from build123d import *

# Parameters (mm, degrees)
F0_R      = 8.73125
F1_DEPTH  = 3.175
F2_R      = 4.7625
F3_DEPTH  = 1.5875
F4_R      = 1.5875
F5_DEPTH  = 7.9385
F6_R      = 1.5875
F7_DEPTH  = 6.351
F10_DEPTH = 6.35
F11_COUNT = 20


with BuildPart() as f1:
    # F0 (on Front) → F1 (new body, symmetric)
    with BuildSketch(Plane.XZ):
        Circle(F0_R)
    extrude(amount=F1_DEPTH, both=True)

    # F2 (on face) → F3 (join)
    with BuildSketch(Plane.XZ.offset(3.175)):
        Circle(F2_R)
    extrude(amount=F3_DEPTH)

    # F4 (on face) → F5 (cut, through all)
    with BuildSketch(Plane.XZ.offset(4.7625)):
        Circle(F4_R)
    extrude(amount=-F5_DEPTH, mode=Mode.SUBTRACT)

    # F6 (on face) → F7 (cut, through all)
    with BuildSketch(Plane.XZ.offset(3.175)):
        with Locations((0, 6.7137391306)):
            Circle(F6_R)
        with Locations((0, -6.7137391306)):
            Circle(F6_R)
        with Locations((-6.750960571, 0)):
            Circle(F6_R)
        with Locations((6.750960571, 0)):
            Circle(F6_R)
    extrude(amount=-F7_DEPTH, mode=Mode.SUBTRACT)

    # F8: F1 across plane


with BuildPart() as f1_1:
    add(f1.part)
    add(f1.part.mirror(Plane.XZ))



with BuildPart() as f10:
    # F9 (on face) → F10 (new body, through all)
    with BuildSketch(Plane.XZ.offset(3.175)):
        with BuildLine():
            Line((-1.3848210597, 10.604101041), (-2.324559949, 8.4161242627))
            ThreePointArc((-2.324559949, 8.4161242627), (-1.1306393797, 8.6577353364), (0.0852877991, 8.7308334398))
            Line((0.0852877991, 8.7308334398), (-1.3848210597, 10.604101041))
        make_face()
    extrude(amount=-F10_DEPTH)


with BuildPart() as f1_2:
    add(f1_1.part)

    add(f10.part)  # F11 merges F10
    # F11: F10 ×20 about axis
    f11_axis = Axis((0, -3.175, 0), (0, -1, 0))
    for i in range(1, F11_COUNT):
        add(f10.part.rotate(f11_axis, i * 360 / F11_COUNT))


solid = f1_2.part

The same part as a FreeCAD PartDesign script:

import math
import FreeCAD as App
import Part
import Sketcher

V = App.Vector
Q = App.Units.Quantity

doc = App.newDocument("Part")
body = doc.addObject("PartDesign::Body", "Body")

sketch1 = body.newObject("Sketcher::SketchObject", "Sketch")
sketch1.AttachmentSupport = (doc.getObject("XZ_Plane"), [""])
sketch1.MapMode = "FlatFace"
sketch1.addGeometry(Part.Circle(V(0, 0, 0), V(0, 0, 1), 9), False)
sketch1.addConstraint([
    Sketcher.Constraint("Coincident", 0, 3, -1, 1),
    Sketcher.Constraint("Diameter", 0, Q("0.6875 in")),
])
pad1 = body.newObject("PartDesign::Pad", "Pad")
pad1.Profile = sketch1
pad1.Length = Q("0.25 in")
pad1.Midplane = True

sketch2 = body.newObject("Sketcher::SketchObject", "Sketch001")
sketch2.AttachmentSupport = (doc.getObject("XZ_Plane"), [""])
sketch2.MapMode = "FlatFace"
sketch2.AttachmentOffset = App.Placement(V(0, 0, 0.125 * 25.4), App.Rotation())
sketch2.addGeometry(Part.Circle(V(0, 0, 0), V(0, 0, 1), 4.8), False)
sketch2.addConstraint([
    Sketcher.Constraint("Coincident", 0, 3, -1, 1),
    Sketcher.Constraint("Diameter", 0, Q("0.375 in")),
])
pad2 = body.newObject("PartDesign::Pad", "Pad001")
pad2.Profile = sketch2
pad2.Length = Q("0.0625 in")

sketch3 = body.newObject("Sketcher::SketchObject", "Sketch002")
sketch3.AttachmentSupport = (doc.getObject("XZ_Plane"), [""])
sketch3.MapMode = "FlatFace"
sketch3.AttachmentOffset = App.Placement(V(0, 0, 0.1875 * 25.4), App.Rotation())
sketch3.addGeometry(Part.Circle(V(0, 0, 0), V(0, 0, 1), 1.6), False)
sketch3.addConstraint([
    Sketcher.Constraint("Coincident", 0, 3, -1, 1),
    Sketcher.Constraint("Diameter", 0, Q("0.125 in")),
])
pocket1 = body.newObject("PartDesign::Pocket", "Pocket")
pocket1.Profile = sketch3
pocket1.Type = "ThroughAll"

sketch4 = body.newObject("Sketcher::SketchObject", "Sketch003")
sketch4.AttachmentSupport = (doc.getObject("XZ_Plane"), [""])
sketch4.MapMode = "FlatFace"
sketch4.AttachmentOffset = App.Placement(V(0, 0, 0.125 * 25.4), App.Rotation())
sketch4.addGeometry([
    Part.Circle(V(0, 6.7, 0), V(0, 0, 1), 1.6),
    Part.Circle(V(0, -6.7, 0), V(0, 0, 1), 1.6),
    Part.Circle(V(-6.8, 0, 0), V(0, 0, 1), 1.6),
    Part.Circle(V(6.8, 0, 0), V(0, 0, 1), 1.6),
], False)
sketch4.addConstraint([
    Sketcher.Constraint("Equal", 0, 1),
    Sketcher.Constraint("Equal", 1, 2),
    Sketcher.Constraint("Equal", 2, 3),
    Sketcher.Constraint("Symmetric", 0, 3, 1, 3, -1, 1),
    Sketcher.Constraint("Symmetric", 2, 3, 3, 3, -1, 1),
    Sketcher.Constraint("PointOnObject", 0, 3, -2),
    Sketcher.Constraint("PointOnObject", 2, 3, -1),
    Sketcher.Constraint("Diameter", 0, Q("0.125 in")),
    Sketcher.Constraint("DistanceY", -1, 1, 0, 3, Q("6.713739 mm")),
    Sketcher.Constraint("DistanceX", 2, 3, -1, 1, Q("6.750961 mm")),
])
pocket2 = body.newObject("PartDesign::Pocket", "Pocket001")
pocket2.Profile = sketch4
pocket2.Type = "ThroughAll"
body2 = doc.addObject("PartDesign::Body", "Body001")
doc.recompute()

body2.BaseFeature = body
doc.recompute()

mirroring = doc.addObject("Part::Mirroring", "Mirroring")
mirroring.Source = body
mirroring.Base = V(0, 0, 0)
mirroring.Normal = V(0, -1, 0)
body3 = doc.addObject("PartDesign::Body", "Body002")
body3.BaseFeature = mirroring
boolean = body2.newObject("PartDesign::Boolean", "Boolean")
boolean.Type = "Fuse"
boolean.addObjects([body3])
doc.recompute()
body4 = doc.addObject("PartDesign::Body", "Body003")

sketch5 = body4.newObject("Sketcher::SketchObject", "Sketch004")
sketch5.AttachmentSupport = (doc.getObject("XZ_Plane003"), [""])
sketch5.MapMode = "FlatFace"
sketch5.AttachmentOffset = App.Placement(V(0, 0, 0.125 * 25.4), App.Rotation())
sketch5.addGeometry([
    Part.LineSegment(V(-1.4, 10.6, 0), V(-2.3, 8.4, 0)),
    Part.ArcOfCircle(Part.Circle(V(0, 0, 0), V(0, 0, 1), 8.7), math.radians(89.44), math.radians(105.44)),
    Part.LineSegment(V(0.1, 8.7, 0), V(-1.4, 10.6, 0)),
], False)
sketch5.addConstraint([
    Sketcher.Constraint("Coincident", 0, 2, 1, 2),
    Sketcher.Constraint("Coincident", 1, 1, 2, 1),
    Sketcher.Constraint("Coincident", 2, 2, 0, 1),
    Sketcher.Constraint("Coincident", 1, 3, -1, 1),
    Sketcher.Constraint("Equal", 0, 2),
    Sketcher.Constraint("Radius", 1, Q("0.34375 in")),
    Sketcher.Constraint("Distance", 0, Q("0.09375 in")),
    Sketcher.Constraint("DistanceY", -1, 1, 2, 2, Q("10.604101 mm")),
    Sketcher.Constraint("DistanceX", 0, 2, -1, 1, Q("2.32456 mm")),
])
pad3 = body4.newObject("PartDesign::Pad", "Pad002")
pad3.Profile = sketch5
pad3.Length = Q("0.25 in")
pad3.Reversed = True
doc.recompute()

body5 = doc.addObject("PartDesign::Body", "Body004")
body5.BaseFeature = body4
boolean2 = body2.newObject("PartDesign::Boolean", "Boolean001")
boolean2.Type = "Fuse"
boolean2.addObjects([body5])
doc.recompute()

body6 = doc.addObject("PartDesign::Body", "Body005")
body6.BaseFeature = body4
body6.Placement = App.Placement(V(0, 0, 0), App.Rotation(V(0, -1, 0), 18))
boolean3 = body2.newObject("PartDesign::Boolean", "Boolean002")
boolean3.Type = "Fuse"
boolean3.addObjects([body6])
doc.recompute()

body7 = doc.addObject("PartDesign::Body", "Body006")
body7.BaseFeature = body4
body7.Placement = App.Placement(V(0, 0, 0), App.Rotation(V(0, -1, 0), 36))
boolean4 = body2.newObject("PartDesign::Boolean", "Boolean003")
boolean4.Type = "Fuse"
boolean4.addObjects([body7])
doc.recompute()

body8 = doc.addObject("PartDesign::Body", "Body007")
body8.BaseFeature = body4
body8.Placement = App.Placement(V(0, 0, 0), App.Rotation(V(0, -1, 0), 54))
boolean5 = body2.newObject("PartDesign::Boolean", "Boolean004")
boolean5.Type = "Fuse"
boolean5.addObjects([body8])
doc.recompute()

body9 = doc.addObject("PartDesign::Body", "Body008")
body9.BaseFeature = body4
body9.Placement = App.Placement(V(0, 0, 0), App.Rotation(V(0, -1, 0), 72))
boolean6 = body2.newObject("PartDesign::Boolean", "Boolean005")
boolean6.Type = "Fuse"
boolean6.addObjects([body9])
doc.recompute()

body10 = doc.addObject("PartDesign::Body", "Body009")
body10.BaseFeature = body4
body10.Placement = App.Placement(V(0, 0, 0), App.Rotation(V(0, -1, 0), 90))
boolean7 = body2.newObject("PartDesign::Boolean", "Boolean006")
boolean7.Type = "Fuse"
boolean7.addObjects([body10])
doc.recompute()

body11 = doc.addObject("PartDesign::Body", "Body010")
body11.BaseFeature = body4
body11.Placement = App.Placement(V(0, 0, 0), App.Rotation(V(0, -1, 0), 108))
boolean8 = body2.newObject("PartDesign::Boolean", "Boolean007")
boolean8.Type = "Fuse"
boolean8.addObjects([body11])
doc.recompute()

body12 = doc.addObject("PartDesign::Body", "Body011")
body12.BaseFeature = body4
body12.Placement = App.Placement(V(0, 0, 0), App.Rotation(V(0, -1, 0), 126))
boolean9 = body2.newObject("PartDesign::Boolean", "Boolean008")
boolean9.Type = "Fuse"
boolean9.addObjects([body12])
doc.recompute()

body13 = doc.addObject("PartDesign::Body", "Body012")
body13.BaseFeature = body4
body13.Placement = App.Placement(V(0, 0, 0), App.Rotation(V(0, -1, 0), 144))
boolean10 = body2.newObject("PartDesign::Boolean", "Boolean009")
boolean10.Type = "Fuse"
boolean10.addObjects([body13])
doc.recompute()

body14 = doc.addObject("PartDesign::Body", "Body013")
body14.BaseFeature = body4
body14.Placement = App.Placement(V(0, 0, 0), App.Rotation(V(0, -1, 0), 162))
boolean11 = body2.newObject("PartDesign::Boolean", "Boolean010")
boolean11.Type = "Fuse"
boolean11.addObjects([body14])
doc.recompute()

body15 = doc.addObject("PartDesign::Body", "Body014")
body15.BaseFeature = body4
body15.Placement = App.Placement(V(0, 0, 0), App.Rotation(V(0, -1, 0), 180))
boolean12 = body2.newObject("PartDesign::Boolean", "Boolean011")
boolean12.Type = "Fuse"
boolean12.addObjects([body15])
doc.recompute()

body16 = doc.addObject("PartDesign::Body", "Body015")
body16.BaseFeature = body4
body16.Placement = App.Placement(V(0, 0, 0), App.Rotation(V(0, -1, 0), 198))
boolean13 = body2.newObject("PartDesign::Boolean", "Boolean012")
boolean13.Type = "Fuse"
boolean13.addObjects([body16])
doc.recompute()

body17 = doc.addObject("PartDesign::Body", "Body016")
body17.BaseFeature = body4
body17.Placement = App.Placement(V(0, 0, 0), App.Rotation(V(0, -1, 0), 216))
boolean14 = body2.newObject("PartDesign::Boolean", "Boolean013")
boolean14.Type = "Fuse"
boolean14.addObjects([body17])
doc.recompute()

body18 = doc.addObject("PartDesign::Body", "Body017")
body18.BaseFeature = body4
body18.Placement = App.Placement(V(0, 0, 0), App.Rotation(V(0, -1, 0), 234))
boolean15 = body2.newObject("PartDesign::Boolean", "Boolean014")
boolean15.Type = "Fuse"
boolean15.addObjects([body18])
doc.recompute()

body19 = doc.addObject("PartDesign::Body", "Body018")
body19.BaseFeature = body4
body19.Placement = App.Placement(V(0, 0, 0), App.Rotation(V(0, -1, 0), 252))
boolean16 = body2.newObject("PartDesign::Boolean", "Boolean015")
boolean16.Type = "Fuse"
boolean16.addObjects([body19])
doc.recompute()

body20 = doc.addObject("PartDesign::Body", "Body019")
body20.BaseFeature = body4
body20.Placement = App.Placement(V(0, 0, 0), App.Rotation(V(0, -1, 0), 270))
boolean17 = body2.newObject("PartDesign::Boolean", "Boolean016")
boolean17.Type = "Fuse"
boolean17.addObjects([body20])
doc.recompute()

body21 = doc.addObject("PartDesign::Body", "Body020")
body21.BaseFeature = body4
body21.Placement = App.Placement(V(0, 0, 0), App.Rotation(V(0, -1, 0), 288))
boolean18 = body2.newObject("PartDesign::Boolean", "Boolean017")
boolean18.Type = "Fuse"
boolean18.addObjects([body21])
doc.recompute()

body22 = doc.addObject("PartDesign::Body", "Body021")
body22.BaseFeature = body4
body22.Placement = App.Placement(V(0, 0, 0), App.Rotation(V(0, -1, 0), 306))
boolean19 = body2.newObject("PartDesign::Boolean", "Boolean018")
boolean19.Type = "Fuse"
boolean19.addObjects([body22])
doc.recompute()

body23 = doc.addObject("PartDesign::Body", "Body022")
body23.BaseFeature = body4
body23.Placement = App.Placement(V(0, 0, 0), App.Rotation(V(0, -1, 0), 324))
boolean20 = body2.newObject("PartDesign::Boolean", "Boolean019")
boolean20.Type = "Fuse"
boolean20.addObjects([body23])
doc.recompute()

body4.Placement = App.Placement(V(0, 0, 0), App.Rotation(V(0, -1, 0), 342))
boolean21 = body2.newObject("PartDesign::Boolean", "Boolean020")
boolean21.Type = "Fuse"
boolean21.addObjects([body4])
mirroring.Visibility = False

doc.recompute()
